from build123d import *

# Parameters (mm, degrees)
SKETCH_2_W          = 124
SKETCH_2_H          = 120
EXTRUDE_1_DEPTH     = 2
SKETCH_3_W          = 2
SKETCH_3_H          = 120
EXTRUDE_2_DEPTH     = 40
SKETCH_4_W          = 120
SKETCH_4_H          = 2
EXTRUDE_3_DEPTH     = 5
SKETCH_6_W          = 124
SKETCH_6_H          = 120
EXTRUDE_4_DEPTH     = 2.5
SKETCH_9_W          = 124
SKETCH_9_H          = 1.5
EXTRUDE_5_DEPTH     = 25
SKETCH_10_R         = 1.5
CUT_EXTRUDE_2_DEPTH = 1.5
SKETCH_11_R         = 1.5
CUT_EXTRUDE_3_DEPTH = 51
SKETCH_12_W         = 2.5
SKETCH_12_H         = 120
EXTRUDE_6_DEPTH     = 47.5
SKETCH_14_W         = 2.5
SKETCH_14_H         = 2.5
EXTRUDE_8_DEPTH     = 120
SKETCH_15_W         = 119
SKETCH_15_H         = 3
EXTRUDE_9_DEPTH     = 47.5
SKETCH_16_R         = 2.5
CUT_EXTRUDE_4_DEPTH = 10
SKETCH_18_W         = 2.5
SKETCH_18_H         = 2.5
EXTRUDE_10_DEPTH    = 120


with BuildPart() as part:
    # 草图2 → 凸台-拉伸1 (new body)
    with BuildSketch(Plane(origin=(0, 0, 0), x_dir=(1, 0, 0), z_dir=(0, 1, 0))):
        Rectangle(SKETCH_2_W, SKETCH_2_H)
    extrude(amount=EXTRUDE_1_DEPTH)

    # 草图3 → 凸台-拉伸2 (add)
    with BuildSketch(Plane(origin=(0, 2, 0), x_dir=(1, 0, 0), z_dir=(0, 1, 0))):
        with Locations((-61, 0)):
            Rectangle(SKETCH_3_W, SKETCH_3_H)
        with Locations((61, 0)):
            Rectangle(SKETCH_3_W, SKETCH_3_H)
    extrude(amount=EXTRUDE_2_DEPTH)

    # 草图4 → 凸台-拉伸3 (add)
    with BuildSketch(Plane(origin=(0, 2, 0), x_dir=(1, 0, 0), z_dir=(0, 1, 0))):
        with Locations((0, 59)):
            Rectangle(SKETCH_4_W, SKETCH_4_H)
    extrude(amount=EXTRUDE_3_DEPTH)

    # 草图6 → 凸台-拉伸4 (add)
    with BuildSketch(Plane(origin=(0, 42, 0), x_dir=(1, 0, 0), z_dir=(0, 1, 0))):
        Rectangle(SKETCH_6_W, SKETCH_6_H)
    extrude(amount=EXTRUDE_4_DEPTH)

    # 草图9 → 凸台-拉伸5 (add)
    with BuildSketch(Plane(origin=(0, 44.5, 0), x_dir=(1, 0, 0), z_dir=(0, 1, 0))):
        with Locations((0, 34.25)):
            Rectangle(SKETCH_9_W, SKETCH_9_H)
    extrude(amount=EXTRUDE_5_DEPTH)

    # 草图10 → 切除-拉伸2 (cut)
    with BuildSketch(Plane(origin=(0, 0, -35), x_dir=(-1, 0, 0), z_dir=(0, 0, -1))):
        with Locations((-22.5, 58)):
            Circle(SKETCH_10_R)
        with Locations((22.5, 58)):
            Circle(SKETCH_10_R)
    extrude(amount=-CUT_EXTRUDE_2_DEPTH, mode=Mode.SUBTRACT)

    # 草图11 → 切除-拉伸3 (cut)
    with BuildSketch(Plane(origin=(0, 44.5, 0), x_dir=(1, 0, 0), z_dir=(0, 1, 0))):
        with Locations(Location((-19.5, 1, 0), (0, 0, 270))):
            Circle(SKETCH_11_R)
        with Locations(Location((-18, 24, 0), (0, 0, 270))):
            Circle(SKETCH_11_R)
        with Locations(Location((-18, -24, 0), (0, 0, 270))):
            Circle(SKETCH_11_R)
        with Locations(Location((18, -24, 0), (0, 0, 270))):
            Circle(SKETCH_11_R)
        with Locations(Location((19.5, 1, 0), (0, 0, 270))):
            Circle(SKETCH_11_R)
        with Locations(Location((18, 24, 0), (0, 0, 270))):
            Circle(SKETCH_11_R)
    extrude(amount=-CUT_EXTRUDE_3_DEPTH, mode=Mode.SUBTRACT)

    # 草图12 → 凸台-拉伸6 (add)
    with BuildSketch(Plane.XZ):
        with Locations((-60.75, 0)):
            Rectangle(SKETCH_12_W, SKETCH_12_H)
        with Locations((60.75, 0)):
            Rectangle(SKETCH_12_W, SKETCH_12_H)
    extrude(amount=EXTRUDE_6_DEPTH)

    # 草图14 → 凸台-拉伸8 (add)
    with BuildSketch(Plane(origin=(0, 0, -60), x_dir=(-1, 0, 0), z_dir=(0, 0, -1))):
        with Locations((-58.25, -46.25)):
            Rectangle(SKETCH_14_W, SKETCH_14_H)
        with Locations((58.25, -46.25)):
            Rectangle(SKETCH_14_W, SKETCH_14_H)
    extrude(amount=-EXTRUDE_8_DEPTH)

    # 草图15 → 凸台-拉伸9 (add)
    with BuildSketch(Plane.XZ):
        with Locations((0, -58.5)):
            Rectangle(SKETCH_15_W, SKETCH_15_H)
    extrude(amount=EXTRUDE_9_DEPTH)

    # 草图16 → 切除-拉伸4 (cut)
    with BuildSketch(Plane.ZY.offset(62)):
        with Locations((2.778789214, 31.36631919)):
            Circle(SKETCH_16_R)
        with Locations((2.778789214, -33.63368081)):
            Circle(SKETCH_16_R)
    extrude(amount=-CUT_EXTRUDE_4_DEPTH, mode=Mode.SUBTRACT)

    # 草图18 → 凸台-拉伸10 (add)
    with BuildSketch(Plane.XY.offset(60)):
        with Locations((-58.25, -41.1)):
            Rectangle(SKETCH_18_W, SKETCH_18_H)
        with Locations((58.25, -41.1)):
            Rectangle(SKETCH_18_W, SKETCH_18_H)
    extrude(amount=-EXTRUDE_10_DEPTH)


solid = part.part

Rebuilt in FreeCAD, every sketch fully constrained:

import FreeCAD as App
import Part
import Sketcher
Q = App.Units.Quantity

doc = App.newDocument("Part")
body = doc.addObject("PartDesign::Body", "Body")

sketch1 = body.newObject("Sketcher::SketchObject", "Sketch")
sketch1.AttachmentSupport = (doc.getObject("XZ_Plane"), [""])
sketch1.MapMode = "FlatFace"
sketch1.addGeometry(Part.LineSegment(App.Vector(-62, -60, 0), App.Vector(-62, 60, 0)), False)
sketch1.addGeometry(Part.LineSegment(App.Vector(-62, 60, 0), App.Vector(62, 60, 0)), False)
sketch1.addGeometry(Part.LineSegment(App.Vector(62, 60, 0), App.Vector(62, -60, 0)), False)
sketch1.addGeometry(Part.LineSegment(App.Vector(62, -60, 0), App.Vector(-62, -60, 0)), False)
sketch1.addConstraint(Sketcher.Constraint("Coincident", 0, 2, 1, 1))
sketch1.addConstraint(Sketcher.Constraint("Coincident", 1, 2, 2, 1))
sketch1.addConstraint(Sketcher.Constraint("Coincident", 2, 2, 3, 1))
sketch1.addConstraint(Sketcher.Constraint("Coincident", 3, 2, 0, 1))
sketch1.addConstraint(Sketcher.Constraint("Vertical", 0))
sketch1.addConstraint(Sketcher.Constraint("Horizontal", 1))
sketch1.addConstraint(Sketcher.Constraint("Vertical", 2))
sketch1.addConstraint(Sketcher.Constraint("Horizontal", 3))
sketch1.addConstraint(Sketcher.Constraint("Symmetric", 0, 2, 2, 2, -1, 1))
sketch1.addConstraint(Sketcher.Constraint("DistanceX", 1, 1, 1, 2, Q("124 mm")))
sketch1.addConstraint(Sketcher.Constraint("DistanceY", 0, 1, 0, 2, Q("120 mm")))
pad1 = body.newObject("PartDesign::Pad", "Pad")
pad1.Profile = sketch1
pad1.Length = 2
pad1.Reversed = True

sketch2 = body.newObject("Sketcher::SketchObject", "Sketch001")
sketch2.AttachmentSupport = (doc.getObject("XZ_Plane"), [""])
sketch2.MapMode = "FlatFace"
sketch2.AttachmentOffset = App.Placement(App.Vector(0, 0, -2), App.Rotation())
sketch2.addGeometry(Part.LineSegment(App.Vector(-62, -60, 0), App.Vector(-62, 60, 0)), False)
sketch2.addGeometry(Part.LineSegment(App.Vector(-62, 60, 0), App.Vector(-60, 60, 0)), False)
sketch2.addGeometry(Part.LineSegment(App.Vector(-60, 60, 0), App.Vector(-60, -60, 0)), False)
sketch2.addGeometry(Part.LineSegment(App.Vector(-60, -60, 0), App.Vector(-62, -60, 0)), False)
sketch2.addGeometry(Part.LineSegment(App.Vector(60, -60, 0), App.Vector(60, 60, 0)), False)
sketch2.addGeometry(Part.LineSegment(App.Vector(60, 60, 0), App.Vector(62, 60, 0)), False)
sketch2.addGeometry(Part.LineSegment(App.Vector(62, 60, 0), App.Vector(62, -60, 0)), False)
sketch2.addGeometry(Part.LineSegment(App.Vector(62, -60, 0), App.Vector(60, -60, 0)), False)
sketch2.addConstraint(Sketcher.Constraint("Coincident", 0, 2, 1, 1))
sketch2.addConstraint(Sketcher.Constraint("Coincident", 1, 2, 2, 1))
sketch2.addConstraint(Sketcher.Constraint("Coincident", 2, 2, 3, 1))
sketch2.addConstraint(Sketcher.Constraint("Coincident", 3, 2, 0, 1))
sketch2.addConstraint(Sketcher.Constraint("Coincident", 4, 2, 5, 1))
sketch2.addConstraint(Sketcher.Constraint("Coincident", 5, 2, 6, 1))
sketch2.addConstraint(Sketcher.Constraint("Coincident", 6, 2, 7, 1))
sketch2.addConstraint(Sketcher.Constraint("Coincident", 7, 2, 4, 1))
sketch2.addConstraint(Sketcher.Constraint("Vertical", 0))
sketch2.addConstraint(Sketcher.Constraint("Horizontal", 1))
sketch2.addConstraint(Sketcher.Constraint("Vertical", 2))
sketch2.addConstraint(Sketcher.Constraint("Horizontal", 3))
sketch2.addConstraint(Sketcher.Constraint("Vertical", 4))
sketch2.addConstraint(Sketcher.Constraint("Horizontal", 5))
sketch2.addConstraint(Sketcher.Constraint("Vertical", 6))
sketch2.addConstraint(Sketcher.Constraint("Horizontal", 7))
sketch2.addConstraint(Sketcher.Constraint("Symmetric", 2, 2, 4, 2, -1, 1))
sketch2.addConstraint(Sketcher.Constraint("Symmetric", 0, 2, 6, 2, -1, 1))
sketch2.addConstraint(Sketcher.Constraint("Horizontal", 1, 2, 4, 2))
sketch2.addConstraint(Sketcher.Constraint("DistanceX", 1, 1, 1, 2, Q("2 mm")))
sketch2.addConstraint(Sketcher.Constraint("DistanceY", 0, 1, 0, 2, Q("120 mm")))
sketch2.addConstraint(Sketcher.Constraint("DistanceX", 0, 2, -1, 1, Q("62 mm")))
pad2 = body.newObject("PartDesign::Pad", "Pad001")
pad2.Profile = sketch2
pad2.Length = 40
pad2.Reversed = True

sketch3 = body.newObject("Sketcher::SketchObject", "Sketch002")
sketch3.AttachmentSupport = (doc.getObject("XZ_Plane"), [""])
sketch3.MapMode = "FlatFace"
sketch3.AttachmentOffset = App.Placement(App.Vector(0, 0, -2), App.Rotation())
sketch3.addGeometry(Part.LineSegment(App.Vector(-60, -60, 0), App.Vector(-60, -58, 0)), False)
sketch3.addGeometry(Part.LineSegment(App.Vector(-60, -58, 0), App.Vector(60, -58, 0)), False)
sketch3.addGeometry(Part.LineSegment(App.Vector(60, -58, 0), App.Vector(60, -60, 0)), False)
sketch3.addGeometry(Part.LineSegment(App.Vector(60, -60, 0), App.Vector(-60, -60, 0)), False)
sketch3.addConstraint(Sketcher.Constraint("Coincident", 0, 2, 1, 1))
sketch3.addConstraint(Sketcher.Constraint("Coincident", 1, 2, 2, 1))
sketch3.addConstraint(Sketcher.Constraint("Coincident", 2, 2, 3, 1))
sketch3.addConstraint(Sketcher.Constraint("Coincident", 3, 2, 0, 1))
sketch3.addConstraint(Sketcher.Constraint("Vertical", 0))
sketch3.addConstraint(Sketcher.Constraint("Horizontal", 1))
sketch3.addConstraint(Sketcher.Constraint("Vertical", 2))
sketch3.addConstraint(Sketcher.Constraint("Horizontal", 3))
sketch3.addConstraint(Sketcher.Constraint("DistanceX", 1, 1, 1, 2, Q("120 mm")))
sketch3.addConstraint(Sketcher.Constraint("DistanceY", 0, 1, 0, 2, Q("2 mm")))
sketch3.addConstraint(Sketcher.Constraint("DistanceX", 0, 2, -1, 1, Q("60 mm")))
sketch3.addConstraint(Sketcher.Constraint("DistanceY", 0, 2, -1, 1, Q("58 mm")))
pad3 = body.newObject("PartDesign::Pad", "Pad002")
pad3.Profile = sketch3
pad3.Length = 5
pad3.Reversed = True

sketch4 = body.newObject("Sketcher::SketchObject", "Sketch003")
sketch4.AttachmentSupport = (doc.getObject("XZ_Plane"), [""])
sketch4.MapMode = "FlatFace"
sketch4.AttachmentOffset = App.Placement(App.Vector(0, 0, -42), App.Rotation())
sketch4.addGeometry(Part.LineSegment(App.Vector(-62, -60, 0), App.Vector(-62, 60, 0)), False)
sketch4.addGeometry(Part.LineSegment(App.Vector(-62, 60, 0), App.Vector(62, 60, 0)), False)
sketch4.addGeometry(Part.LineSegment(App.Vector(62, 60, 0), App.Vector(62, -60, 0)), False)
sketch4.addGeometry(Part.LineSegment(App.Vector(62, -60, 0), App.Vector(-62, -60, 0)), False)
sketch4.addConstraint(Sketcher.Constraint("Coincident", 0, 2, 1, 1))
sketch4.addConstraint(Sketcher.Constraint("Coincident", 1, 2, 2, 1))
sketch4.addConstraint(Sketcher.Constraint("Coincident", 2, 2, 3, 1))
sketch4.addConstraint(Sketcher.Constraint("Coincident", 3, 2, 0, 1))
sketch4.addConstraint(Sketcher.Constraint("Vertical", 0))
sketch4.addConstraint(Sketcher.Constraint("Horizontal", 1))
sketch4.addConstraint(Sketcher.Constraint("Vertical", 2))
sketch4.addConstraint(Sketcher.Constraint("Horizontal", 3))
sketch4.addConstraint(Sketcher.Constraint("Symmetric", 0, 2, 2, 2, -1, 1))
sketch4.addConstraint(Sketcher.Constraint("DistanceX", 1, 1, 1, 2, Q("124 mm")))
sketch4.addConstraint(Sketcher.Constraint("DistanceY", 0, 1, 0, 2, Q("120 mm")))
pad4 = body.newObject("PartDesign::Pad", "Pad003")
pad4.Profile = sketch4
pad4.Length = 2.5
pad4.Reversed = True

sketch5 = body.newObject("Sketcher::SketchObject", "Sketch004")
sketch5.AttachmentSupport = (doc.getObject("XZ_Plane"), [""])
sketch5.MapMode = "FlatFace"
sketch5.AttachmentOffset = App.Placement(App.Vector(0, 0, -44.5), App.Rotation())
sketch5.addGeometry(Part.LineSegment(App.Vector(-62, -35, 0), App.Vector(-62, -33.5, 0)), False)
sketch5.addGeometry(Part.LineSegment(App.Vector(-62, -33.5, 0), App.Vector(62, -33.5, 0)), False)
sketch5.addGeometry(Part.LineSegment(App.Vector(62, -33.5, 0), App.Vector(62, -35, 0)), False)
sketch5.addGeometry(Part.LineSegment(App.Vector(62, -35, 0), App.Vector(-62, -35, 0)), False)
sketch5.addConstraint(Sketcher.Constraint("Coincident", 0, 2, 1, 1))
sketch5.addConstraint(Sketcher.Constraint("Coincident", 1, 2, 2, 1))
sketch5.addConstraint(Sketcher.Constraint("Coincident", 2, 2, 3, 1))
sketch5.addConstraint(Sketcher.Constraint("Coincident", 3, 2, 0, 1))
sketch5.addConstraint(Sketcher.Constraint("Vertical", 0))
sketch5.addConstraint(Sketcher.Constraint("Horizontal", 1))
sketch5.addConstraint(Sketcher.Constraint("Vertical", 2))
sketch5.addConstraint(Sketcher.Constraint("Horizontal", 3))
sketch5.addConstraint(Sketcher.Constraint("DistanceX", 1, 1, 1, 2, Q("124 mm")))
sketch5.addConstraint(Sketcher.Constraint("DistanceY", 0, 1, 0, 2, Q("1.5 mm")))
sketch5.addConstraint(Sketcher.Constraint("DistanceX", 0, 2, -1, 1, Q("62 mm")))
sketch5.addConstraint(Sketcher.Constraint("DistanceY", 2, 2, -1, 1, Q("35 mm")))
pad5 = body.newObject("PartDesign::Pad", "Pad004")
pad5.Profile = sketch5
pad5.Length = 25
pad5.Reversed = True

sketch6 = body.newObject("Sketcher::SketchObject", "Sketch005")
sketch6.AttachmentSupport = (doc.getObject("XY_Plane"), [""])
sketch6.MapMode = "FlatFace"
sketch6.AttachmentOffset = App.Placement(App.Vector(0, 0, -35), App.Rotation())
sketch6.addGeometry(Part.Circle(App.Vector(22.5, 58, 0), App.Vector(0, 0, 1), 1.5), False)
sketch6.addGeometry(Part.Circle(App.Vector(-22.5, 58, 0), App.Vector(0, 0, 1), 1.5), False)
sketch6.addConstraint(Sketcher.Constraint("Equal", 0, 1))
sketch6.addConstraint(Sketcher.Constraint("Symmetric", 0, 3, 1, 3, -2))
sketch6.addConstraint(Sketcher.Constraint("Diameter", 0, Q("3 mm")))
sketch6.addConstraint(Sketcher.Constraint("DistanceY", -1, 1, 0, 3, Q("58 mm")))
sketch6.addConstraint(Sketcher.Constraint("DistanceX", 1, 3, 0, 3, Q("45 mm")))
pocket1 = body.newObject("PartDesign::Pocket", "Pocket")
pocket1.Profile = sketch6
pocket1.Length = 1.5
pocket1.Reversed = True

sketch7 = body.newObject("Sketcher::SketchObject", "Sketch006")
sketch7.AttachmentSupport = (doc.getObject("XZ_Plane"), [""])
sketch7.MapMode = "FlatFace"
sketch7.AttachmentOffset = App.Placement(App.Vector(0, 0, -44.5), App.Rotation())
sketch7.addGeometry(Part.Circle(App.Vector(-19.5, -1, 0), App.Vector(0, 0, 1), 1.5), False)
sketch7.addGeometry(Part.Circle(App.Vector(-18, -24, 0), App.Vector(0, 0, 1), 1.5), False)
sketch7.addGeometry(Part.Circle(App.Vector(-18, 24, 0), App.Vector(0, 0, 1), 1.5), False)
sketch7.addGeometry(Part.Circle(App.Vector(18, 24, 0), App.Vector(0, 0, 1), 1.5), False)
sketch7.addGeometry(Part.Circle(App.Vector(19.5, -1, 0), App.Vector(0, 0, 1), 1.5), False)
sketch7.addGeometry(Part.Circle(App.Vector(18, -24, 0), App.Vector(0, 0, 1), 1.5), False)
sketch7.addConstraint(Sketcher.Constraint("Equal", 0, 1))
sketch7.addConstraint(Sketcher.Constraint("Equal", 1, 2))
sketch7.addConstraint(Sketcher.Constraint("Equal", 2, 3))
sketch7.addConstraint(Sketcher.Constraint("Equal", 3, 4))
sketch7.addConstraint(Sketcher.Constraint("Equal", 4, 5))
sketch7.addConstraint(Sketcher.Constraint("Symmetric", 1, 3, 3, 3, -1, 1))
sketch7.addConstraint(Sketcher.Constraint("Symmetric", 2, 3, 5, 3, -1, 1))
sketch7.addConstraint(Sketcher.Constraint("Symmetric", 2, 3, 3, 3, -2))
sketch7.addConstraint(Sketcher.Constraint("Symmetric", 0, 3, 4, 3, -2))
sketch7.addConstraint(Sketcher.Constraint("Diameter", 0, Q("3 mm")))
sketch7.addConstraint(Sketcher.Constraint("DistanceY", 0, 3, -1, 1, Q("1 mm")))
sketch7.addConstraint(Sketcher.Constraint("DistanceX", 1, 3, -1, 1, Q("18 mm")))
sketch7.addConstraint(Sketcher.Constraint("DistanceY", 1, 3, -1, 1, Q("24 mm")))
sketch7.addConstraint(Sketcher.Constraint("DistanceX", 0, 3, 4, 3, Q("39 mm")))
pocket2 = body.newObject("PartDesign::Pocket", "Pocket001")
pocket2.Profile = sketch7
pocket2.Length = 51
pocket2.Reversed = True

sketch8 = body.newObject("Sketcher::SketchObject", "Sketch007")
sketch8.AttachmentSupport = (doc.getObject("XZ_Plane"), [""])
sketch8.MapMode = "FlatFace"
sketch8.addGeometry(Part.LineSegment(App.Vector(-62, 60, 0), App.Vector(-62, -60, 0)), False)
sketch8.addGeometry(Part.LineSegment(App.Vector(-62, -60, 0), App.Vector(-59.5, -60, 0)), False)
sketch8.addGeometry(Part.LineSegment(App.Vector(-59.5, -60, 0), App.Vector(-59.5, 60, 0)), False)
sketch8.addGeometry(Part.LineSegment(App.Vector(-59.5, 60, 0), App.Vector(-62, 60, 0)), False)
sketch8.addGeometry(Part.LineSegment(App.Vector(59.5, 60, 0), App.Vector(59.5, -60, 0)), False)
sketch8.addGeometry(Part.LineSegment(App.Vector(59.5, -60, 0), App.Vector(62, -60, 0)), False)
sketch8.addGeometry(Part.LineSegment(App.Vector(62, -60, 0), App.Vector(62, 60, 0)), False)
sketch8.addGeometry(Part.LineSegment(App.Vector(62, 60, 0), App.Vector(59.5, 60, 0)), False)
sketch8.addConstraint(Sketcher.Constraint("Coincident", 0, 2, 1, 1))
sketch8.addConstraint(Sketcher.Constraint("Coincident", 1, 2, 2, 1))
sketch8.addConstraint(Sketcher.Constraint("Coincident", 2, 2, 3, 1))
sketch8.addConstraint(Sketcher.Constraint("Coincident", 3, 2, 0, 1))
sketch8.addConstraint(Sketcher.Constraint("Coincident", 4, 2, 5, 1))
sketch8.addConstraint(Sketcher.Constraint("Coincident", 5, 2, 6, 1))
sketch8.addConstraint(Sketcher.Constraint("Coincident", 6, 2, 7, 1))
sketch8.addConstraint(Sketcher.Constraint("Coincident", 7, 2, 4, 1))
sketch8.addConstraint(Sketcher.Constraint("Vertical", 0))
sketch8.addConstraint(Sketcher.Constraint("Horizontal", 1))
sketch8.addConstraint(Sketcher.Constraint("Vertical", 2))
sketch8.addConstraint(Sketcher.Constraint("Horizontal", 3))
sketch8.addConstraint(Sketcher.Constraint("Vertical", 4))
sketch8.addConstraint(Sketcher.Constraint("Horizontal", 5))
sketch8.addConstraint(Sketcher.Constraint("Vertical", 6))
sketch8.addConstraint(Sketcher.Constraint("Horizontal", 7))
sketch8.addConstraint(Sketcher.Constraint("Symmetric", 2, 2, 4, 2, -1, 1))
sketch8.addConstraint(Sketcher.Constraint("Symmetric", 0, 2, 6, 2, -1, 1))
sketch8.addConstraint(Sketcher.Constraint("Horizontal", 1, 2, 4, 2))
sketch8.addConstraint(Sketcher.Constraint("DistanceY", 0, 2, 0, 1, Q("120 mm")))
sketch8.addConstraint(Sketcher.Constraint("DistanceX", 1, 1, 1, 2, Q("2.5 mm")))
sketch8.addConstraint(Sketcher.Constraint("DistanceX", 0, 2, -1, 1, Q("62 mm")))
pad6 = body.newObject("PartDesign::Pad", "Pad005")
pad6.Profile = sketch8
pad6.Length = 47.5

sketch9 = body.newObject("Sketcher::SketchObject", "Sketch008")
sketch9.AttachmentSupport = (doc.getObject("XY_Plane"), [""])
sketch9.MapMode = "FlatFace"
sketch9.AttachmentOffset = App.Placement(App.Vector(0, 0, -60), App.Rotation())
sketch9.addGeometry(Part.LineSegment(App.Vector(59.5, -45, 0), App.Vector(59.5, -47.5, 0)), False)
sketch9.addGeometry(Part.LineSegment(App.Vector(59.5, -47.5, 0), App.Vector(57, -47.5, 0)), False)
sketch9.addGeometry(Part.LineSegment(App.Vector(57, -47.5, 0), App.Vector(57, -45, 0)), False)
sketch9.addGeometry(Part.LineSegment(App.Vector(57, -45, 0), App.Vector(59.5, -45, 0)), False)
sketch9.addGeometry(Part.LineSegment(App.Vector(-57, -45, 0), App.Vector(-57, -47.5, 0)), False)
sketch9.addGeometry(Part.LineSegment(App.Vector(-57, -47.5, 0), App.Vector(-59.5, -47.5, 0)), False)
sketch9.addGeometry(Part.LineSegment(App.Vector(-59.5, -47.5, 0), App.Vector(-59.5, -45, 0)), False)
sketch9.addGeometry(Part.LineSegment(App.Vector(-59.5, -45, 0), App.Vector(-57, -45, 0)), False)
sketch9.addConstraint(Sketcher.Constraint("Coincident", 0, 2, 1, 1))
sketch9.addConstraint(Sketcher.Constraint("Coincident", 1, 2, 2, 1))
sketch9.addConstraint(Sketcher.Constraint("Coincident", 2, 2, 3, 1))
sketch9.addConstraint(Sketcher.Constraint("Coincident", 3, 2, 0, 1))
sketch9.addConstraint(Sketcher.Constraint("Coincident", 4, 2, 5, 1))
sketch9.addConstraint(Sketcher.Constraint("Coincident", 5, 2, 6, 1))
sketch9.addConstraint(Sketcher.Constraint("Coincident", 6, 2, 7, 1))
sketch9.addConstraint(Sketcher.Constraint("Coincident", 7, 2, 4, 1))
sketch9.addConstraint(Sketcher.Constraint("Vertical", 0))
sketch9.addConstraint(Sketcher.Constraint("Horizontal", 1))
sketch9.addConstraint(Sketcher.Constraint("Vertical", 2))
sketch9.addConstraint(Sketcher.Constraint("Horizontal", 3))
sketch9.addConstraint(Sketcher.Constraint("Vertical", 4))
sketch9.addConstraint(Sketcher.Constraint("Horizontal", 5))
sketch9.addConstraint(Sketcher.Constraint("Vertical", 6))
sketch9.addConstraint(Sketcher.Constraint("Horizontal", 7))
sketch9.addConstraint(Sketcher.Constraint("Symmetric", 1, 2, 4, 2, -2))
sketch9.addConstraint(Sketcher.Constraint("Symmetric", 3, 2, 6, 2, -2))
sketch9.addConstraint(Sketcher.Constraint("Equal", 7, 0))
sketch9.addConstraint(Sketcher.Constraint("DistanceX", 1, 2, 1, 1, Q("2.5 mm")))
sketch9.addConstraint(Sketcher.Constraint("DistanceX", -1, 1, 1, 2, Q("57 mm")))
sketch9.addConstraint(Sketcher.Constraint("DistanceY", 2, 2, -1, 1, Q("45 mm")))
pad7 = body.newObject("PartDesign::Pad", "Pad006")
pad7.Profile = sketch9
pad7.Length = 120

sketch10 = body.newObject("Sketcher::SketchObject", "Sketch009")
sketch10.AttachmentSupport = (doc.getObject("XZ_Plane"), [""])
sketch10.MapMode = "FlatFace"
sketch10.addGeometry(Part.LineSegment(App.Vector(-59.5, -57, 0), App.Vector(-59.5, -60, 0)), False)
sketch10.addGeometry(Part.LineSegment(App.Vector(-59.5, -60, 0), App.Vector(59.5, -60, 0)), False)
sketch10.addGeometry(Part.LineSegment(App.Vector(59.5, -60, 0), App.Vector(59.5, -57, 0)), False)
sketch10.addGeometry(Part.LineSegment(App.Vector(59.5, -57, 0), App.Vector(-59.5, -57, 0)), False)
sketch10.addConstraint(Sketcher.Constraint("Coincident", 0, 2, 1, 1))
sketch10.addConstraint(Sketcher.Constraint("Coincident", 1, 2, 2, 1))
sketch10.addConstraint(Sketcher.Constraint("Coincident", 2, 2, 3, 1))
sketch10.addConstraint(Sketcher.Constraint("Coincident", 3, 2, 0, 1))
sketch10.addConstraint(Sketcher.Constraint("Vertical", 0))
sketch10.addConstraint(Sketcher.Constraint("Horizontal", 1))
sketch10.addConstraint(Sketcher.Constraint("Vertical", 2))
sketch10.addConstraint(Sketcher.Constraint("Horizontal", 3))
sketch10.addConstraint(Sketcher.Constraint("DistanceX", 1, 1, 1, 2, Q("119 mm")))
sketch10.addConstraint(Sketcher.Constraint("DistanceY", 0, 2, 0, 1, Q("3 mm")))
sketch10.addConstraint(Sketcher.Constraint("DistanceY", 0, 2, -1, 1, Q("60 mm")))
sketch10.addConstraint(Sketcher.Constraint("DistanceX", 0, 2, -1, 1, Q("59.5 mm")))
pad8 = body.newObject("PartDesign::Pad", "Pad007")
pad8.Profile = sketch10
pad8.Length = 47.5

sketch11 = body.newObject("Sketcher::SketchObject", "Sketch010")
sketch11.AttachmentSupport = (doc.getObject("YZ_Plane"), [""])
sketch11.MapMode = "FlatFace"
sketch11.AttachmentOffset = App.Placement(App.Vector(0, 0, -62), App.Rotation())
sketch11.addGeometry(Part.Circle(App.Vector(31.4, 2.8, 0), App.Vector(0, 0, 1), 2.5), False)
sketch11.addGeometry(Part.Circle(App.Vector(-33.6, 2.8, 0), App.Vector(0, 0, 1), 2.5), False)
sketch11.addConstraint(Sketcher.Constraint("Equal", 0, 1))
sketch11.addConstraint(Sketcher.Constraint("Horizontal", 0, 3, 1, 3))
sketch11.addConstraint(Sketcher.Constraint("Diameter", 0, Q("5 mm")))
sketch11.addConstraint(Sketcher.Constraint("DistanceX", 1, 3, 0, 3, Q("65 mm")))
sketch11.addConstraint(Sketcher.Constraint("DistanceX", -1, 1, 0, 3, Q("31.366319 mm")))
sketch11.addConstraint(Sketcher.Constraint("DistanceY", -1, 1, 0, 3, Q("2.778789 mm")))
pocket3 = body.newObject("PartDesign::Pocket", "Pocket002")
pocket3.Profile = sketch11
pocket3.Length = 10
pocket3.Reversed = True

sketch12 = body.newObject("Sketcher::SketchObject", "Sketch011")
sketch12.AttachmentSupport = (doc.getObject("XY_Plane"), [""])
sketch12.MapMode = "FlatFace"
sketch12.AttachmentOffset = App.Placement(App.Vector(0, 0, 60), App.Rotation())
sketch12.addGeometry(Part.LineSegment(App.Vector(-59.5, -39.9, 0), App.Vector(-59.5, -42.4, 0)), False)
sketch12.addGeometry(Part.LineSegment(App.Vector(-59.5, -42.4, 0), App.Vector(-57, -42.4, 0)), False)
sketch12.addGeometry(Part.LineSegment(App.Vector(-57, -42.4, 0), App.Vector(-57, -39.9, 0)), False)
sketch12.addGeometry(Part.LineSegment(App.Vector(-57, -39.9, 0), App.Vector(-59.5, -39.9, 0)), False)
sketch12.addGeometry(Part.LineSegment(App.Vector(57, -39.9, 0), App.Vector(57, -42.4, 0)), False)
sketch12.addGeometry(Part.LineSegment(App.Vector(57, -42.4, 0), App.Vector(59.5, -42.4, 0)), False)
sketch12.addGeometry(Part.LineSegment(App.Vector(59.5, -42.4, 0), App.Vector(59.5, -39.9, 0)), False)
sketch12.addGeometry(Part.LineSegment(App.Vector(59.5, -39.9, 0), App.Vector(57, -39.9, 0)), False)
sketch12.addConstraint(Sketcher.Constraint("Coincident", 0, 2, 1, 1))
sketch12.addConstraint(Sketcher.Constraint("Coincident", 1, 2, 2, 1))
sketch12.addConstraint(Sketcher.Constraint("Coincident", 2, 2, 3, 1))
sketch12.addConstraint(Sketcher.Constraint("Coincident", 3, 2, 0, 1))
sketch12.addConstraint(Sketcher.Constraint("Coincident", 4, 2, 5, 1))
sketch12.addConstraint(Sketcher.Constraint("Coincident", 5, 2, 6, 1))
sketch12.addConstraint(Sketcher.Constraint("Coincident", 6, 2, 7, 1))
sketch12.addConstraint(Sketcher.Constraint("Coincident", 7, 2, 4, 1))
sketch12.addConstraint(Sketcher.Constraint("Vertical", 0))
sketch12.addConstraint(Sketcher.Constraint("Horizontal", 1))
sketch12.addConstraint(Sketcher.Constraint("Vertical", 2))
sketch12.addConstraint(Sketcher.Constraint("Horizontal", 3))
sketch12.addConstraint(Sketcher.Constraint("Vertical", 4))
sketch12.addConstraint(Sketcher.Constraint("Horizontal", 5))
sketch12.addConstraint(Sketcher.Constraint("Vertical", 6))
sketch12.addConstraint(Sketcher.Constraint("Horizontal", 7))
sketch12.addConstraint(Sketcher.Constraint("Symmetric", 1, 2, 4, 2, -2))
sketch12.addConstraint(Sketcher.Constraint("Symmetric", 3, 2, 6, 2, -2))
sketch12.addConstraint(Sketcher.Constraint("Equal", 7, 0))
sketch12.addConstraint(Sketcher.Constraint("DistanceX", 1, 1, 1, 2, Q("2.5 mm")))
sketch12.addConstraint(Sketcher.Constraint("DistanceX", 1, 2, -1, 1, Q("57 mm")))
sketch12.addConstraint(Sketcher.Constraint("DistanceY", 0, 2, -1, 1, Q("42.35 mm")))
pad9 = body.newObject("PartDesign::Pad", "Pad008")
pad9.Profile = sketch12
pad9.Length = 120
pad9.Reversed = True

doc.recompute()
